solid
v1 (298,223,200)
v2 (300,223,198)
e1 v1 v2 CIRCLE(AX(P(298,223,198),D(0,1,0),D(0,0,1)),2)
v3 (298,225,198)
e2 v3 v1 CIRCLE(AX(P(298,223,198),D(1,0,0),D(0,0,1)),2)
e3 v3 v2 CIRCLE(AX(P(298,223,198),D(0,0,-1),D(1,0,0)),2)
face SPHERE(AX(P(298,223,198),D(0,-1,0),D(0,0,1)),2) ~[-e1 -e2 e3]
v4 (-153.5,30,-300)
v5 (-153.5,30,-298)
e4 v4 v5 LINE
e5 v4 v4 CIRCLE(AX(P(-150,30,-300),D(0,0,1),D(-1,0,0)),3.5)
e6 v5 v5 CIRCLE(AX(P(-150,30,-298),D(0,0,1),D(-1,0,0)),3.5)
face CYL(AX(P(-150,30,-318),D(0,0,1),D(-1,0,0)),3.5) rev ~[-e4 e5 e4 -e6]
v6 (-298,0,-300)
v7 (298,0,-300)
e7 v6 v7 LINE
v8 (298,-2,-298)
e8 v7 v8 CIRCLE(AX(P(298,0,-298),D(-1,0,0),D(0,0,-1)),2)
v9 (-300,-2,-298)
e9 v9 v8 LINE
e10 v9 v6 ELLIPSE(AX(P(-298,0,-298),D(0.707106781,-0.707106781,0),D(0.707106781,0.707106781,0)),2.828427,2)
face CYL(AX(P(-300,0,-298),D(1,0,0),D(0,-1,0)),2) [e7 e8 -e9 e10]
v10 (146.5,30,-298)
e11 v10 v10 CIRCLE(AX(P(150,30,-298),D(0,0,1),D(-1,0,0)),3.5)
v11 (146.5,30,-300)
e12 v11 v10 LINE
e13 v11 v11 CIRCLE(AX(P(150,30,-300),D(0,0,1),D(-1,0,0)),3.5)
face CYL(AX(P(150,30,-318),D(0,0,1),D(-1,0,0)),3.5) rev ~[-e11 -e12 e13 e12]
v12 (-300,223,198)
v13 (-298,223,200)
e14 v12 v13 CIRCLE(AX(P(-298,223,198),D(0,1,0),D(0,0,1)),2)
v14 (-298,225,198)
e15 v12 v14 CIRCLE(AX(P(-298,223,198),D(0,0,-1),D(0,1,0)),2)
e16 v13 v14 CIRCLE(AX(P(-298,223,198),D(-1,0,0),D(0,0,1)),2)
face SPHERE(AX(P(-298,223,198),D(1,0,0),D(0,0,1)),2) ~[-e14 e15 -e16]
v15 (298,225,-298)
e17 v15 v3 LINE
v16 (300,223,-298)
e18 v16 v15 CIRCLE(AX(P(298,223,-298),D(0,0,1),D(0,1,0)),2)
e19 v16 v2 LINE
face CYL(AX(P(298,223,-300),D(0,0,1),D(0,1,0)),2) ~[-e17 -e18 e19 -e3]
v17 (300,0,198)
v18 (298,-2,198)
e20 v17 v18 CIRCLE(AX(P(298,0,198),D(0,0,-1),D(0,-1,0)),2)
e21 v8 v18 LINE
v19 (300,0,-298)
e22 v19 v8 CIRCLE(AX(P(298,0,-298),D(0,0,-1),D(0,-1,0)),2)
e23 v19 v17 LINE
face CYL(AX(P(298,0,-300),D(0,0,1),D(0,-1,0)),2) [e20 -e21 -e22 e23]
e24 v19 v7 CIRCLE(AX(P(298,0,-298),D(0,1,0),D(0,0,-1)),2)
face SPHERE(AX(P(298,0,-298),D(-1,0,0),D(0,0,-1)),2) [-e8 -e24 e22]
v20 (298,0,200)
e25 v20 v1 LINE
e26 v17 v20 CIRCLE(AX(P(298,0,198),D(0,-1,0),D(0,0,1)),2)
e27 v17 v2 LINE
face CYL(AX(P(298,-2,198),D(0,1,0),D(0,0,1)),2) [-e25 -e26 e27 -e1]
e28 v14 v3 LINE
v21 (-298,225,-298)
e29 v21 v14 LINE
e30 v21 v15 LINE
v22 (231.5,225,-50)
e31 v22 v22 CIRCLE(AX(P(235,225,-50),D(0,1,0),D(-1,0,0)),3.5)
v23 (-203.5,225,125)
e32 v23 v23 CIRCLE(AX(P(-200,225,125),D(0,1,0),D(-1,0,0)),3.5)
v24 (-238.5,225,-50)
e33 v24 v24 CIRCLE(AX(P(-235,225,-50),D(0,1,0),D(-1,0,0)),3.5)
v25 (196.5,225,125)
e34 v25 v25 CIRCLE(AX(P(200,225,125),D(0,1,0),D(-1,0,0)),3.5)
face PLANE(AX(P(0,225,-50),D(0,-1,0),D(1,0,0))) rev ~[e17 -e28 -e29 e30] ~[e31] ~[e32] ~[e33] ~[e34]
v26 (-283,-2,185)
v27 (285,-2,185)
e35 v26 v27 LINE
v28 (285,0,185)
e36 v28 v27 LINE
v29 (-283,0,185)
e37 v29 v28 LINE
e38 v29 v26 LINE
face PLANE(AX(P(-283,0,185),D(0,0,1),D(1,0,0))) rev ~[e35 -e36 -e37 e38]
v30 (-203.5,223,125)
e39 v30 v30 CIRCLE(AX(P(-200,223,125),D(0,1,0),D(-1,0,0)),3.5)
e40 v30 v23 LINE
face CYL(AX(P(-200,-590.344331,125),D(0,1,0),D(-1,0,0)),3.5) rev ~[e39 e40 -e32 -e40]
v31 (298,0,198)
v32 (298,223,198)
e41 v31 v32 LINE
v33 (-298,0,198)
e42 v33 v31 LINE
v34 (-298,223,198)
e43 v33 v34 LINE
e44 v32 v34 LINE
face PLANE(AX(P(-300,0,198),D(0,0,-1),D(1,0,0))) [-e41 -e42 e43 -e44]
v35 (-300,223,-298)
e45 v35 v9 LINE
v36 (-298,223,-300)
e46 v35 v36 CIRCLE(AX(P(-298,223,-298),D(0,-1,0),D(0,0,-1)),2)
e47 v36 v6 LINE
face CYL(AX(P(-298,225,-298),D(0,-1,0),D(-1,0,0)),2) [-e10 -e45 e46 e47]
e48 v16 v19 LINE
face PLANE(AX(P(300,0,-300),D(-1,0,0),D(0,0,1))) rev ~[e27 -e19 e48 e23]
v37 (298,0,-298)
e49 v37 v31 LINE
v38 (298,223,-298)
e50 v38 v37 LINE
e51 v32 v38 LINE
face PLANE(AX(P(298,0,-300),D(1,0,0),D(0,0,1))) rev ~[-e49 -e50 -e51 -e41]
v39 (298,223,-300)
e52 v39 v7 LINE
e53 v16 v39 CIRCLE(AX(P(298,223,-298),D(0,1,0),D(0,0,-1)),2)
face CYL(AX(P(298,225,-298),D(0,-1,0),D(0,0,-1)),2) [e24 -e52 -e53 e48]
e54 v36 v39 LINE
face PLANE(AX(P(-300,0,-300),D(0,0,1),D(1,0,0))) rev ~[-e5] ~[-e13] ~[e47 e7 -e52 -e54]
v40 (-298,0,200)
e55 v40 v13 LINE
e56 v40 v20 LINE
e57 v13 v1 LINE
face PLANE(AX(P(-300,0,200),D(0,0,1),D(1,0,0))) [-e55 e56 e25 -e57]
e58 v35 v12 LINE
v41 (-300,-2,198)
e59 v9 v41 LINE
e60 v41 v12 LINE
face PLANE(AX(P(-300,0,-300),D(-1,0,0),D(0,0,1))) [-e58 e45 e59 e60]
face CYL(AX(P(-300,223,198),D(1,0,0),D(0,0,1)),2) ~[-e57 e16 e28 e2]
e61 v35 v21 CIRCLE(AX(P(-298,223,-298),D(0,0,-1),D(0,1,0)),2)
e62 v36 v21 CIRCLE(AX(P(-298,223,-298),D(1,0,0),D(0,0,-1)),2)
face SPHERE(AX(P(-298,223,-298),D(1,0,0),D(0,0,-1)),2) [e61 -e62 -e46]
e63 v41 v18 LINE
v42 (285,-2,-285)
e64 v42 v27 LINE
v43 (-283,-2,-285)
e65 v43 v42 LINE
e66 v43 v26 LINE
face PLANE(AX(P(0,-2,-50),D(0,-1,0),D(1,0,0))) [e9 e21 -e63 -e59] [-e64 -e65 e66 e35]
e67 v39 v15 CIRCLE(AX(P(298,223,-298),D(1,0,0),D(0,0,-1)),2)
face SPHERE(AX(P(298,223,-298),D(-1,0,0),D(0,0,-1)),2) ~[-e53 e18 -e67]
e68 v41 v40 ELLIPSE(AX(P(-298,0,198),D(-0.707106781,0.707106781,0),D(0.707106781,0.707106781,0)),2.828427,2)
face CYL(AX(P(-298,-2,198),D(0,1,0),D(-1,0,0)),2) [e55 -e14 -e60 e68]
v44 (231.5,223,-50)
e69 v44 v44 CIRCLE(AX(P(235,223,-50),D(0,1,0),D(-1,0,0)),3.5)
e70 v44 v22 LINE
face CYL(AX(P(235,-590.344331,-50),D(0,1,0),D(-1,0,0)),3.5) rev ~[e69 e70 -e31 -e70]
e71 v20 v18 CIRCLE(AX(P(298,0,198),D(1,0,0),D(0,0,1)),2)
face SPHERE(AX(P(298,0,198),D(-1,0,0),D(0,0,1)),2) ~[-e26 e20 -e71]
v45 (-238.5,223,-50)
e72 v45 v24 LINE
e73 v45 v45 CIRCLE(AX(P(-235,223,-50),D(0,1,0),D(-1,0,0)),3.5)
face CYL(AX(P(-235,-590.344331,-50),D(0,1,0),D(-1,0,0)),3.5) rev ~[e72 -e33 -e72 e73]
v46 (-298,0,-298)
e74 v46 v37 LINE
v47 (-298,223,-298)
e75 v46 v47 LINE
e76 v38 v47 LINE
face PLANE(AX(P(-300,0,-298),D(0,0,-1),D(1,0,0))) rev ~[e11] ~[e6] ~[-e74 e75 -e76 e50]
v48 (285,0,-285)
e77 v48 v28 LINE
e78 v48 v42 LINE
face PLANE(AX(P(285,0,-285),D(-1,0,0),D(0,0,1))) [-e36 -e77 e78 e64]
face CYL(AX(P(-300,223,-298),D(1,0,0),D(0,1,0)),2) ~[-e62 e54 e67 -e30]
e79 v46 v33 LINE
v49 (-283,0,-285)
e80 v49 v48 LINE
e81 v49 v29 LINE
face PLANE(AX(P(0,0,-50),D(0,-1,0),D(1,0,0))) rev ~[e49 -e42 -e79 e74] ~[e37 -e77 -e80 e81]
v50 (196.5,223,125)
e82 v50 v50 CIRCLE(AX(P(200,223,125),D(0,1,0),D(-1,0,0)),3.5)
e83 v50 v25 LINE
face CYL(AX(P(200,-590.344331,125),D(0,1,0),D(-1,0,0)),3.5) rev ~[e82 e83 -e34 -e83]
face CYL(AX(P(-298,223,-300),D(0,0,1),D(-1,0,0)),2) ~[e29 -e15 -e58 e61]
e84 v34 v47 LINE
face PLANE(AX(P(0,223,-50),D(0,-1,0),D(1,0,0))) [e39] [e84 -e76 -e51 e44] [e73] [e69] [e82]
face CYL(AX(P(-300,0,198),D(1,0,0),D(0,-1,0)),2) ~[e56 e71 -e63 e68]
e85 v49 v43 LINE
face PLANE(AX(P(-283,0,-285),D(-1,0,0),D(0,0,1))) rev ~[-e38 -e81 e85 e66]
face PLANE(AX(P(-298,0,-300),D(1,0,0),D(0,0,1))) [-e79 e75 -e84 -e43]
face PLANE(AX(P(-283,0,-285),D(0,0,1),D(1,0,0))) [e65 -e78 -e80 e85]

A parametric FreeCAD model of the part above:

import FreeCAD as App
import Part
import Sketcher


def edges_at(feature, points):
    """Names of the edges that pass closest to the given points."""
    edges = feature.Shape.Edges
    near = lambda p: min(range(len(edges)), key=lambda i: edges[i].distToShape(Part.Vertex(*p))[0])
    return sorted({f"Edge{near(p) + 1}" for p in points})


def faces_at(feature, points):
    """Names of the faces that lie closest to the given points."""
    faces = feature.Shape.Faces
    near = lambda p: min(range(len(faces)), key=lambda i: faces[i].distToShape(Part.Vertex(*p))[0])
    return sorted({f"Face{near(p) + 1}" for p in points})

doc = App.newDocument("Part")
body = doc.addObject("PartDesign::Body", "Body")

sketch1 = doc.addObject("Sketcher::SketchObject", "Sketch")
body.addObject(sketch1)
sketch1.AttachmentSupport = (doc.XZ_Plane, [""])
sketch1.MapMode = "FlatFace"
sketch1.addGeometry([
    Part.LineSegment(App.Vector(-300, 200, 0), App.Vector(-300, -300, 0)),
    Part.LineSegment(App.Vector(-300, -300, 0), App.Vector(300, -300, 0)),
    Part.LineSegment(App.Vector(300, -300, 0), App.Vector(300, 200, 0)),
    Part.LineSegment(App.Vector(300, 200, 0), App.Vector(-300, 200, 0)),
], False)
sketch1.addConstraint([
    Sketcher.Constraint("Coincident", 0, 2, 1, 1),
    Sketcher.Constraint("Coincident", 1, 2, 2, 1),
    Sketcher.Constraint("Coincident", 2, 2, 3, 1),
    Sketcher.Constraint("Coincident", 3, 2, 0, 1),
    Sketcher.Constraint("Vertical", 0),
    Sketcher.Constraint("Horizontal", 1),
    Sketcher.Constraint("Vertical", 2),
    Sketcher.Constraint("Horizontal", 3),
    Sketcher.Constraint("DistanceX", 1, 1, 1, 2, 600.0),
    Sketcher.Constraint("DistanceY", 0, 2, 0, 1, 500.0),
    Sketcher.Constraint("DistanceX", 0, 2, -1, 1, 300.0),
    Sketcher.Constraint("DistanceY", 0, 2, -1, 1, 300.0),
])
pad1 = doc.addObject("PartDesign::Pad", "Pad")
body.addObject(pad1)
pad1.Profile = sketch1
pad1.Length = 225
pad1.Reversed = True
doc.recompute()

thickness = doc.addObject("PartDesign::Thickness", "Thickness")
body.addObject(thickness)
thickness.Base = (pad1, faces_at(pad1, [(0, 0, -50)]))
thickness.Value = 2
thickness.Reversed = True
thickness.Join = "Arc"

sketch2 = doc.addObject("Sketcher::SketchObject", "Sketch001")
body.addObject(sketch2)
sketch2.AttachmentSupport = (doc.XZ_Plane, [""])
sketch2.MapMode = "FlatFace"
sketch2.addGeometry([
    Part.LineSegment(App.Vector(-300, 200, 0), App.Vector(-300, -300, 0)),
    Part.LineSegment(App.Vector(-300, -300, 0), App.Vector(300, -300, 0)),
    Part.LineSegment(App.Vector(300, -300, 0), App.Vector(300, 200, 0)),
    Part.LineSegment(App.Vector(300, 200, 0), App.Vector(-300, 200, 0)),
    Part.LineSegment(App.Vector(285, -285, 0), App.Vector(-283, -285, 0)),
    Part.LineSegment(App.Vector(-283, -285, 0), App.Vector(-283, 185, 0)),
    Part.LineSegment(App.Vector(-283, 185, 0), App.Vector(285, 185, 0)),
    Part.LineSegment(App.Vector(285, 185, 0), App.Vector(285, -285, 0)),
], False)
sketch2.addConstraint([
    Sketcher.Constraint("Coincident", 0, 2, 1, 1),
    Sketcher.Constraint("Coincident", 1, 2, 2, 1),
    Sketcher.Constraint("Coincident", 2, 2, 3, 1),
    Sketcher.Constraint("Coincident", 3, 2, 0, 1),
    Sketcher.Constraint("Coincident", 4, 2, 5, 1),
    Sketcher.Constraint("Coincident", 5, 2, 6, 1),
    Sketcher.Constraint("Coincident", 6, 2, 7, 1),
    Sketcher.Constraint("Coincident", 7, 2, 4, 1),
    Sketcher.Constraint("Vertical", 0),
    Sketcher.Constraint("Horizontal", 1),
    Sketcher.Constraint("Vertical", 2),
    Sketcher.Constraint("Horizontal", 3),
    Sketcher.Constraint("Horizontal", 4),
    Sketcher.Constraint("Vertical", 5),
    Sketcher.Constraint("Horizontal", 6),
    Sketcher.Constraint("Vertical", 7),
    Sketcher.Constraint("DistanceX", 1, 1, 1, 2, 600.0),
    Sketcher.Constraint("DistanceX", 4, 2, 4, 1, 568.0),
    Sketcher.Constraint("DistanceY", 0, 2, 0, 1, 500.0),
    Sketcher.Constraint("DistanceY", 5, 1, 5, 2, 470.0),
    Sketcher.Constraint("DistanceX", 0, 2, -1, 1, 300.0),
    Sketcher.Constraint("DistanceY", 0, 2, -1, 1, 300.0),
    Sketcher.Constraint("DistanceX", 4, 2, -1, 1, 283.0),
    Sketcher.Constraint("DistanceY", 4, 2, -1, 1, 285.0),
])
pad2 = doc.addObject("PartDesign::Pad", "Pad001")
body.addObject(pad2)
pad2.Profile = sketch2
pad2.Length = 2

sketch3 = doc.addObject("Sketcher::SketchObject", "Sketch002")
body.addObject(sketch3)
sketch3.AttachmentSupport = (doc.XZ_Plane, [""])
sketch3.MapMode = "FlatFace"
sketch3.AttachmentOffset = App.Placement(App.Vector(0, 0, -223), App.Rotation())
sketch3.addGeometry([
    Part.Circle(App.Vector(-200, 125, 0), App.Vector(0, 0, 1), 3.5),
    Part.Circle(App.Vector(200, 125, 0), App.Vector(0, 0, 1), 3.5),
    Part.Circle(App.Vector(235, -50, 0), App.Vector(0, 0, 1), 3.5),
    Part.Circle(App.Vector(-235, -50, 0), App.Vector(0, 0, 1), 3.5),
], False)
sketch3.addConstraint([
    Sketcher.Constraint("Equal", 0, 1),
    Sketcher.Constraint("Equal", 1, 2),
    Sketcher.Constraint("Equal", 2, 3),
    Sketcher.Constraint("Symmetric", 0, 3, 1, 3, -2),
    Sketcher.Constraint("Symmetric", 2, 3, 3, 3, -2),
    Sketcher.Constraint("Diameter", 0, 7.0),
    Sketcher.Constraint("DistanceX", 0, 3, -1, 1, 200.0),
    Sketcher.Constraint("DistanceY", -1, 1, 0, 3, 125.0),
    Sketcher.Constraint("DistanceX", -1, 1, 2, 3, 235.0),
    Sketcher.Constraint("DistanceY", 2, 3, -1, 1, 50.0),
])
doc.recompute()
hole = doc.addObject("PartDesign::Hole", "Hole")
body.addObject(hole)
hole.Profile = sketch3
hole.ThreadType = "None"
hole.Diameter = 7
hole.DepthType = "ThroughAll"

sketch4 = doc.addObject("Sketcher::SketchObject", "Sketch003")
body.addObject(sketch4)
sketch4.AttachmentSupport = (doc.XY_Plane, [""])
sketch4.MapMode = "FlatFace"
sketch4.AttachmentOffset = App.Placement(App.Vector(0, 0, -300), App.Rotation())
sketch4.addGeometry([
    Part.Circle(App.Vector(150, 30, 0), App.Vector(0, 0, 1), 3.5),
    Part.Circle(App.Vector(-150, 30, 0), App.Vector(0, 0, 1), 3.5),
], False)
sketch4.addConstraint([
    Sketcher.Constraint("Equal", 0, 1),
    Sketcher.Constraint("Symmetric", 0, 3, 1, 3, -2),
    Sketcher.Constraint("Diameter", 0, 7.0),
    Sketcher.Constraint("DistanceX", -1, 1, 0, 3, 150.0),
    Sketcher.Constraint("DistanceY", -1, 1, 0, 3, 30.0),
])
doc.recompute()
hole2 = doc.addObject("PartDesign::Hole", "Hole001")
body.addObject(hole2)
hole2.Profile = sketch4
hole2.ThreadType = "None"
hole2.Diameter = 7
hole2.DepthType = "Dimension"
hole2.Depth = 18
hole2.DrillPoint = "Flat"
hole2.Reversed = True
doc.recompute()

fillet = doc.addObject("PartDesign::Fillet", "Fillet")
body.addObject(fillet)
fillet.Base = (hole2, edges_at(hole2, [
    (0, -2, 200),
    (300, 111.5, 200),
    (0, 225, 200),
    (-300, 111.5, 200),
    (0, -2, -300),
    (0, 225, -300),
    (-300, 111.5, -300),
    (300, 111.5, -300),
    (300, 225, -50),
    (300, -2, -50),
    (-300, 225, -50),
]))
fillet.Radius = 2

doc.recompute()
